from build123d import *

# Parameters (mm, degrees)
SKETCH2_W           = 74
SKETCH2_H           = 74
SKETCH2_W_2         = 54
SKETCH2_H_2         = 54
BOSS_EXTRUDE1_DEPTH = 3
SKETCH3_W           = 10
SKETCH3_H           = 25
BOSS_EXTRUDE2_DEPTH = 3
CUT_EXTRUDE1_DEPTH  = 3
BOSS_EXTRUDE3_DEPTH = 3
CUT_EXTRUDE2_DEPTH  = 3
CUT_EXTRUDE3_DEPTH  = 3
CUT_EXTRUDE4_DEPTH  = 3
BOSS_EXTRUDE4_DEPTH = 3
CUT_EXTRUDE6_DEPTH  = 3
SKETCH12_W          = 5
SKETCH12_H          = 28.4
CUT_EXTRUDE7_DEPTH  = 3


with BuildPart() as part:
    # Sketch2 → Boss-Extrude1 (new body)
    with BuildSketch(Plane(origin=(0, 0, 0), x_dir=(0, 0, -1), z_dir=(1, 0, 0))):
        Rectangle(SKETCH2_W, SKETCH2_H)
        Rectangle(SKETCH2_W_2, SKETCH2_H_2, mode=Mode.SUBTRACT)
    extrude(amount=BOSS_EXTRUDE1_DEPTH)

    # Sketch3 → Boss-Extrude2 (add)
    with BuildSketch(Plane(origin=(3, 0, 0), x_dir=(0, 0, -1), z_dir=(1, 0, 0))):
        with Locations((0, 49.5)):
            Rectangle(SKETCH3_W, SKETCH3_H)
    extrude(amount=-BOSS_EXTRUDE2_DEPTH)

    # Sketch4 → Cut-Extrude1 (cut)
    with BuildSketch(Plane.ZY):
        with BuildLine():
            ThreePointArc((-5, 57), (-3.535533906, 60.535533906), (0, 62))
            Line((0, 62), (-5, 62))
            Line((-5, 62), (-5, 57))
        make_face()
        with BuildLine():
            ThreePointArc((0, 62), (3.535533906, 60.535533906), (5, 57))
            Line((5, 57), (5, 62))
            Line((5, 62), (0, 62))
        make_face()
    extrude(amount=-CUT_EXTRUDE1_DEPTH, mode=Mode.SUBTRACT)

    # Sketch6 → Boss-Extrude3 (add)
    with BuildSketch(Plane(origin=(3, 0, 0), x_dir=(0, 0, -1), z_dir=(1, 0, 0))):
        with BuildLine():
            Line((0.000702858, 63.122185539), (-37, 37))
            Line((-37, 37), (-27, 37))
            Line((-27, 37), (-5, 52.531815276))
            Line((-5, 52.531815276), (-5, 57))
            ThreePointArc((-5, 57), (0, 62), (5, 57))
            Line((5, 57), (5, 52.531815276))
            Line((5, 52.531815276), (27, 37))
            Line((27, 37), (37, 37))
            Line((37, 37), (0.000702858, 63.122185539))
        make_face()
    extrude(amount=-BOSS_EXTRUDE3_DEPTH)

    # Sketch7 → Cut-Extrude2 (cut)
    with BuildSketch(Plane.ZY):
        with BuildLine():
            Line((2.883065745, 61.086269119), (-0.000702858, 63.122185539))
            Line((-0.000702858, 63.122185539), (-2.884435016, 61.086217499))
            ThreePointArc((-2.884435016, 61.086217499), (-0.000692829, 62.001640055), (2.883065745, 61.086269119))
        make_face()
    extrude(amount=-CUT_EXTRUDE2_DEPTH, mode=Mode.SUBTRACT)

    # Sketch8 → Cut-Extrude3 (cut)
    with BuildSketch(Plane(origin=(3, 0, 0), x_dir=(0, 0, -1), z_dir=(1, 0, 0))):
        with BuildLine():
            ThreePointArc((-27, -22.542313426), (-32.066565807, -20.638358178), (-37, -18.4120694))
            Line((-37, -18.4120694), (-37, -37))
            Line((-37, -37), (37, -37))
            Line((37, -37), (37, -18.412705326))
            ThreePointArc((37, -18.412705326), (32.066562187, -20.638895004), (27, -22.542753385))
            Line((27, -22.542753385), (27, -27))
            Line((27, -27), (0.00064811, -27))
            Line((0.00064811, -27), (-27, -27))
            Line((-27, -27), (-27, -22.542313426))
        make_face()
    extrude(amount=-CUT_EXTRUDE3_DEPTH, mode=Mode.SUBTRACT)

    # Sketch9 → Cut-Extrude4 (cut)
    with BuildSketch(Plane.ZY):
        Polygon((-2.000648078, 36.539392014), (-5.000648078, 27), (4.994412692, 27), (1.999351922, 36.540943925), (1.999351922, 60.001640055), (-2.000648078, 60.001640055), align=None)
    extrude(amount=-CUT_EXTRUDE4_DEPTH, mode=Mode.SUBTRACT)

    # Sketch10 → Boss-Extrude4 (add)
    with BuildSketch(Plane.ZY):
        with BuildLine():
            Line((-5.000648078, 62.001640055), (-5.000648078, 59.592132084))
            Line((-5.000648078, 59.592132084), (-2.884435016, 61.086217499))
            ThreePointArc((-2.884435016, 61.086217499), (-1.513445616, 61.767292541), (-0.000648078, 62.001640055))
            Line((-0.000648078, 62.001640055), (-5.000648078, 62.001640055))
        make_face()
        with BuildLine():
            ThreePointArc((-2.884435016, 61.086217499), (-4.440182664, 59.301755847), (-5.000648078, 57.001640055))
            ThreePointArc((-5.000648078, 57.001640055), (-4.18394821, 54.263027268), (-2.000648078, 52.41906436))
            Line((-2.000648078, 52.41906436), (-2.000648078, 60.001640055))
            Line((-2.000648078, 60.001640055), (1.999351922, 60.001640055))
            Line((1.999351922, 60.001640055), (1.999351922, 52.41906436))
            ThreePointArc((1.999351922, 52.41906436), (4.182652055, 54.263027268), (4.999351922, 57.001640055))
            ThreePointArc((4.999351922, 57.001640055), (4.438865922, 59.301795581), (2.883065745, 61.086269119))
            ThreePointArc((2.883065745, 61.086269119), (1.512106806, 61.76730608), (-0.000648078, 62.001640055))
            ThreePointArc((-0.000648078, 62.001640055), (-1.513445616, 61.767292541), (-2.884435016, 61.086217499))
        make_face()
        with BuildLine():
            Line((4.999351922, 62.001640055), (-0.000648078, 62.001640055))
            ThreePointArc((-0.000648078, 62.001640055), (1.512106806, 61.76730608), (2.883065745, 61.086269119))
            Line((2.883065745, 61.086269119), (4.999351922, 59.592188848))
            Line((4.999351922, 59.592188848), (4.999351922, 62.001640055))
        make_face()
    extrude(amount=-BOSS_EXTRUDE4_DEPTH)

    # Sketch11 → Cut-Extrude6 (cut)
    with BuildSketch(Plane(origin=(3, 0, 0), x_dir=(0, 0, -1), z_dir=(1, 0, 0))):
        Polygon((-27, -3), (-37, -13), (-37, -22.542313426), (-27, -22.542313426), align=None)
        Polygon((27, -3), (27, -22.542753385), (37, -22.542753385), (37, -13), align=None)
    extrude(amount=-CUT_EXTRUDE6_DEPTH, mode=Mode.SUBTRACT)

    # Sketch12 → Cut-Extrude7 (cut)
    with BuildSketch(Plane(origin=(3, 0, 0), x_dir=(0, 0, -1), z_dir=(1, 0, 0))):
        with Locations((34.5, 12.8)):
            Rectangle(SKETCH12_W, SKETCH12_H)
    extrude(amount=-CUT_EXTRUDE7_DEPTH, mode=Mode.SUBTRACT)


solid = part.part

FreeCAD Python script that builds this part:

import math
import FreeCAD as App
import Part
import Sketcher
from FreeCAD import Vector
Q = App.Units.Quantity

doc = App.newDocument("Part")
body = doc.addObject("PartDesign::Body", "Body")

# Sketch on YZ plane
sketch1 = body.newObject("Sketcher::SketchObject", "Sketch")
sketch1.AttachmentSupport = (doc.getObject("YZ_Plane"), [""])
sketch1.MapMode = "FlatFace"
sketch1.addGeometry([
    Part.LineSegment(Vector(37, 37, 0), Vector(-37, 37, 0)),  # 0
    Part.LineSegment(Vector(-37, 37, 0), Vector(-37, -37, 0)),  # 1
    Part.LineSegment(Vector(-37, -37, 0), Vector(37, -37, 0)),  # 2
    Part.LineSegment(Vector(37, -37, 0), Vector(37, 37, 0)),  # 3
    Part.LineSegment(Vector(-27, -27, 0), Vector(-27, 27, 0)),  # 4
    Part.LineSegment(Vector(-27, 27, 0), Vector(27, 27, 0)),  # 5
    Part.LineSegment(Vector(27, 27, 0), Vector(27, -27, 0)),  # 6
    Part.LineSegment(Vector(27, -27, 0), Vector(-27, -27, 0)),  # 7
], False)
sketch1.addConstraint([
    Sketcher.Constraint("Coincident", 0, 2, 1, 1),
    Sketcher.Constraint("Coincident", 1, 2, 2, 1),
    Sketcher.Constraint("Coincident", 2, 2, 3, 1),
    Sketcher.Constraint("Coincident", 3, 2, 0, 1),
    Sketcher.Constraint("Coincident", 4, 2, 5, 1),
    Sketcher.Constraint("Coincident", 5, 2, 6, 1),
    Sketcher.Constraint("Coincident", 6, 2, 7, 1),
    Sketcher.Constraint("Coincident", 7, 2, 4, 1),
    Sketcher.Constraint("Horizontal", 0),
    Sketcher.Constraint("Vertical", 1),
    Sketcher.Constraint("Horizontal", 2),
    Sketcher.Constraint("Vertical", 3),
    Sketcher.Constraint("Vertical", 4),
    Sketcher.Constraint("Horizontal", 5),
    Sketcher.Constraint("Vertical", 6),
    Sketcher.Constraint("Horizontal", 7),
    Sketcher.Constraint("Symmetric", 0, 2, 2, 2, -1, 1),
    Sketcher.Constraint("Symmetric", 4, 2, 6, 2, -1, 1),
    Sketcher.Constraint("Equal", 2, 1),
    Sketcher.Constraint("Equal", 7, 4),
    Sketcher.Constraint("DistanceX", 0, 2, 0, 1, Q("74 mm")),
    Sketcher.Constraint("DistanceX", 5, 1, 5, 2, Q("54 mm")),
])
pad1 = body.newObject("PartDesign::Pad", "Pad")
pad1.Profile = sketch1
pad1.Length = 3

# Sketch on YZ plane
sketch2 = body.newObject("Sketcher::SketchObject", "Sketch001")
sketch2.AttachmentSupport = (doc.getObject("YZ_Plane"), [""])
sketch2.MapMode = "FlatFace"
sketch2.AttachmentOffset = App.Placement(Vector(0, 0, 3), App.Rotation())
sketch2.addGeometry([
    Part.LineSegment(Vector(62, 5, 0), Vector(37, 5, 0)),
    Part.LineSegment(Vector(37, 5, 0), Vector(37, -5, 0)),
    Part.LineSegment(Vector(37, -5, 0), Vector(62, -5, 0)),
    Part.LineSegment(Vector(62, -5, 0), Vector(62, 5, 0)),
], False)
sketch2.addConstraint([
    Sketcher.Constraint("Coincident", 0, 2, 1, 1),
    Sketcher.Constraint("Coincident", 1, 2, 2, 1),
    Sketcher.Constraint("Coincident", 2, 2, 3, 1),
    Sketcher.Constraint("Coincident", 3, 2, 0, 1),
    Sketcher.Constraint("Horizontal", 0),
    Sketcher.Constraint("Vertical", 1),
    Sketcher.Constraint("Horizontal", 2),
    Sketcher.Constraint("Vertical", 3),
    Sketcher.Constraint("DistanceX", 0, 2, 0, 1, Q("25 mm")),
    Sketcher.Constraint("DistanceY", 1, 2, 1, 1, Q("10 mm")),
    Sketcher.Constraint("DistanceX", -1, 1, 0, 2, Q("37 mm")),
    Sketcher.Constraint("DistanceY", -1, 1, 0, 2, Q("5 mm")),
])
pad2 = body.newObject("PartDesign::Pad", "Pad001")
pad2.Profile = sketch2
pad2.Length = 3
pad2.Reversed = True

# Sketch on YZ plane
sketch3 = body.newObject("Sketcher::SketchObject", "Sketch002")
sketch3.AttachmentSupport = (doc.getObject("YZ_Plane"), [""])
sketch3.MapMode = "FlatFace"
sketch3.addGeometry([
    Part.ArcOfCircle(Part.Circle(Vector(57, 0, 0), Vector(0, 0, 1), 5), math.radians(-90), math.radians(0)),  # 0
    Part.LineSegment(Vector(62, 0, 0), Vector(62, -5, 0)),  # 1
    Part.LineSegment(Vector(62, -5, 0), Vector(57, -5, 0)),  # 2
    Part.ArcOfCircle(Part.Circle(Vector(57, 0, 0), Vector(0, 0, 1), 5), math.radians(0), math.radians(90)),  # 3
    Part.LineSegment(Vector(57, 5, 0), Vector(62, 5, 0)),  # 4
    Part.LineSegment(Vector(62, 5, 0), Vector(62, 0, 0)),  # 5
], False)
sketch3.addConstraint([
    Sketcher.Constraint("Tangent", 0, 2, 1, 1),
    Sketcher.Constraint("Coincident", 1, 2, 2, 1),
    Sketcher.Constraint("Tangent", 2, 2, 0, 1),
    Sketcher.Constraint("Tangent", 3, 2, 4, 1),
    Sketcher.Constraint("Coincident", 4, 2, 5, 1),
    Sketcher.Constraint("Tangent", 5, 2, 3, 1),
    Sketcher.Constraint("Vertical", 1),
    Sketcher.Constraint("Horizontal", 2),
    Sketcher.Constraint("Horizontal", 4),
    Sketcher.Constraint("Vertical", 5),
    Sketcher.Constraint("Coincident", 3, 3, 0, 3),
    Sketcher.Constraint("Equal", 0, 3),
    Sketcher.Constraint("PointOnObject", 0, 3, -1),
    Sketcher.Constraint("Radius", 0, Q("5 mm")),
    Sketcher.Constraint("DistanceX", -1, 1, 0, 3, Q("57 mm")),
])
pocket1 = body.newObject("PartDesign::Pocket", "Pocket")
pocket1.Profile = sketch3
pocket1.Length = 3
pocket1.Reversed = True

# Sketch on YZ plane
sketch4 = body.newObject("Sketcher::SketchObject", "Sketch003")
sketch4.AttachmentSupport = (doc.getObject("YZ_Plane"), [""])
sketch4.MapMode = "FlatFace"
sketch4.AttachmentOffset = App.Placement(Vector(0, 0, 3), App.Rotation())
sketch4.addGeometry([
    Part.LineSegment(Vector(63.1, 0, 0), Vector(37, 37, 0)),  # 0
    Part.LineSegment(Vector(37, 37, 0), Vector(37, 27, 0)),  # 1
    Part.LineSegment(Vector(37, 27, 0), Vector(52.5, 5, 0)),  # 2
    Part.LineSegment(Vector(52.5, 5, 0), Vector(57, 5, 0)),  # 3
    Part.ArcOfCircle(Part.Circle(Vector(57, 0, 0), Vector(0, 0, 1), 5), math.radians(-90), math.radians(90)),  # 4
    Part.LineSegment(Vector(57, -5, 0), Vector(52.5, -5, 0)),  # 5
    Part.LineSegment(Vector(52.5, -5, 0), Vector(37, -27, 0)),  # 6
    Part.LineSegment(Vector(37, -27, 0), Vector(37, -37, 0)),  # 7
    Part.LineSegment(Vector(37, -37, 0), Vector(63.1, 0, 0)),  # 8
], False)
sketch4.addConstraint([
    Sketcher.Constraint("Coincident", 0, 2, 1, 1),
    Sketcher.Constraint("Coincident", 1, 2, 2, 1),
    Sketcher.Constraint("Coincident", 2, 2, 3, 1),
    Sketcher.Constraint("Tangent", 3, 2, 4, 2),
    Sketcher.Constraint("Tangent", 4, 1, 5, 1),
    Sketcher.Constraint("Coincident", 5, 2, 6, 1),
    Sketcher.Constraint("Coincident", 6, 2, 7, 1),
    Sketcher.Constraint("Coincident", 7, 2, 8, 1),
    Sketcher.Constraint("Coincident", 8, 2, 0, 1),
    Sketcher.Constraint("Vertical", 1),
    Sketcher.Constraint("Horizontal", 3),
    Sketcher.Constraint("Horizontal", 5),
    Sketcher.Constraint("Vertical", 7),
    Sketcher.Constraint("Symmetric", 2, 2, 5, 2, -1),
    Sketcher.Constraint("Symmetric", 1, 2, 6, 2, -1),
    Sketcher.Constraint("Parallel", 0, 2),
    Sketcher.Constraint("Equal", 1, 7),
    Sketcher.Constraint("Radius", 4, Q("5 mm")),
    Sketcher.Constraint("DistanceY", 1, 2, 1, 1, Q("10 mm")),
    Sketcher.Constraint("DistanceX", -1, 1, 4, 3, Q("57 mm")),
    Sketcher.Constraint("DistanceX", -1, 1, 0, 2, Q("37 mm")),
    Sketcher.Constraint("DistanceY", -1, 1, 0, 2, Q("37 mm")),
    Sketcher.Constraint("Distance", 0, Q("45.292611 mm")),
    Sketcher.Constraint("Distance", 2, Q("26.93023 mm")),
])
pad3 = body.newObject("PartDesign::Pad", "Pad002")
pad3.Profile = sketch4
pad3.Length = 3
pad3.Reversed = True

# Sketch on YZ plane
sketch5 = body.newObject("Sketcher::SketchObject", "Sketch004")
sketch5.AttachmentSupport = (doc.getObject("YZ_Plane"), [""])
sketch5.MapMode = "FlatFace"
sketch5.addGeometry([
    Part.LineSegment(Vector(61.1, 2.9, 0), Vector(63.1, 0, 0)),
    Part.LineSegment(Vector(63.1, 0, 0), Vector(61.1, -2.9, 0)),
    Part.ArcOfCircle(Part.Circle(Vector(57, 0, 0), Vector(0, 0, 1), 5), math.radians(-35), math.radians(35)),
], False)
sketch5.addConstraint([
    Sketcher.Constraint("Coincident", 0, 2, 1, 1),
    Sketcher.Constraint("Tangent", 1, 2, 2, 1),
    Sketcher.Constraint("Tangent", 2, 2, 0, 1),
    Sketcher.Constraint("Radius", 2, Q("5 mm")),
    Sketcher.Constraint("DistanceY", 1, 2, 2, 2, Q("5.767501 mm")),
    Sketcher.Constraint("DistanceX", -1, 1, 2, 3, Q("57.00164 mm")),
    Sketcher.Constraint("DistanceY", 2, 3, -1, 1, Q("0.000648 mm")),
    Sketcher.Constraint("DistanceX", -1, 1, 2, 2, Q("61.086269 mm")),
])
pocket2 = body.newObject("PartDesign::Pocket", "Pocket001")
pocket2.Profile = sketch5
pocket2.Length = 3
pocket2.Reversed = True

# Sketch on YZ plane
sketch6 = body.newObject("Sketcher::SketchObject", "Sketch005")
sketch6.AttachmentSupport = (doc.getObject("YZ_Plane"), [""])
sketch6.MapMode = "FlatFace"
sketch6.AttachmentOffset = App.Placement(Vector(0, 0, 3), App.Rotation())
sketch6.addGeometry([
    Part.ArcOfCircle(Part.Circle(Vector(57, 0, 0), Vector(0, 0, 1), 84), math.radians(153.87), math.radians(161.25)),  # 0
    Part.LineSegment(Vector(-18.4, 37, 0), Vector(-37, 37, 0)),  # 1
    Part.LineSegment(Vector(-37, 37, 0), Vector(-37, -37, 0)),  # 2
    Part.LineSegment(Vector(-37, -37, 0), Vector(-18.4, -37, 0)),  # 3
    Part.ArcOfCircle(Part.Circle(Vector(57, 0, 0), Vector(0, 0, 1), 84), math.radians(-161.25), math.radians(-153.87)),  # 4
    Part.LineSegment(Vector(-22.5, -27, 0), Vector(-27, -27, 0)),  # 5
    Part.LineSegment(Vector(-27, -27, 0), Vector(-27, 27, 0)),  # 6
    Part.LineSegment(Vector(-27, 27, 0), Vector(-22.5, 27, 0)),  # 7
], False)
sketch6.addConstraint([
    Sketcher.Constraint("Coincident", 0, 1, 1, 1),
    Sketcher.Constraint("Coincident", 1, 2, 2, 1),
    Sketcher.Constraint("Coincident", 2, 2, 3, 1),
    Sketcher.Constraint("Coincident", 3, 2, 4, 2),
    Sketcher.Constraint("Coincident", 4, 1, 5, 1),
    Sketcher.Constraint("Coincident", 5, 2, 6, 1),
    Sketcher.Constraint("Coincident", 6, 2, 7, 1),
    Sketcher.Constraint("Coincident", 7, 2, 0, 2),
    Sketcher.Constraint("Horizontal", 1),
    Sketcher.Constraint("Vertical", 2),
    Sketcher.Constraint("Horizontal", 3),
    Sketcher.Constraint("Horizontal", 5),
    Sketcher.Constraint("Vertical", 6),
    Sketcher.Constraint("Horizontal", 7),
    Sketcher.Constraint("Coincident", 4, 3, 0, 3),
    Sketcher.Constraint("Equal", 0, 4),
    Sketcher.Constraint("DistanceY", 2, 2, 2, 1, Q("74 mm")),
    Sketcher.Constraint("DistanceY", 6, 1, 6, 2, Q("54 mm")),
    Sketcher.Constraint("DistanceY", -1, 1, 0, 1, Q("37 mm")),
    Sketcher.Constraint("DistanceX", 1, 2, -1, 1, Q("37 mm")),
    Sketcher.Constraint("DistanceY", 4, 1, -1, 1, Q("27 mm")),
    Sketcher.Constraint("DistanceX", 5, 2, -1, 1, Q("27 mm")),
    Sketcher.Constraint("Radius", 0, Q("84.00164 mm")),
    Sketcher.Constraint("DistanceX", 1, 2, 1, 1, Q("18.587931 mm")),
    Sketcher.Constraint("DistanceX", 3, 1, 3, 2, Q("18.587295 mm")),
])
pocket3 = body.newObject("PartDesign::Pocket", "Pocket002")
pocket3.Profile = sketch6
pocket3.Length = 3

# Sketch on YZ plane
sketch7 = body.newObject("Sketcher::SketchObject", "Sketch006")
sketch7.AttachmentSupport = (doc.getObject("YZ_Plane"), [""])
sketch7.MapMode = "FlatFace"
sketch7.addGeometry([
    Part.LineSegment(Vector(36.5, -2, 0), Vector(27, -5, 0)),  # 0
    Part.LineSegment(Vector(27, -5, 0), Vector(27, 5, 0)),  # 1
    Part.LineSegment(Vector(27, 5, 0), Vector(36.5, 2, 0)),  # 2
    Part.LineSegment(Vector(36.5, 2, 0), Vector(60, 2, 0)),  # 3
    Part.LineSegment(Vector(60, 2, 0), Vector(60, -2, 0)),  # 4
    Part.LineSegment(Vector(60, -2, 0), Vector(36.5, -2, 0)),  # 5
], False)
sketch7.addConstraint([
    Sketcher.Constraint("Coincident", 0, 2, 1, 1),
    Sketcher.Constraint("Coincident", 1, 2, 2, 1),
    Sketcher.Constraint("Coincident", 2, 2, 3, 1),
    Sketcher.Constraint("Coincident", 3, 2, 4, 1),
    Sketcher.Constraint("Coincident", 4, 2, 5, 1),
    Sketcher.Constraint("Coincident", 5, 2, 0, 1),
    Sketcher.Constraint("Vertical", 1),
    Sketcher.Constraint("Horizontal", 3),
    Sketcher.Constraint("Vertical", 4),
    Sketcher.Constraint("Horizontal", 5),
    Sketcher.Constraint("Equal", 0, 2),
    Sketcher.Constraint("DistanceY", 4, 2, 4, 1, Q("4 mm")),
    Sketcher.Constraint("Distance", 0, Q("10 mm")),
    Sketcher.Constraint("DistanceX", -1, 1, 0, 2, Q("27 mm")),
    Sketcher.Constraint("DistanceY", 0, 2, 2, 2, Q("7 mm")),
    Sketcher.Constraint("DistanceX", 5, 2, 5, 1, Q("23.462248 mm")),
    Sketcher.Constraint("DistanceY", 1, 1, 1, 2, Q("9.995061 mm")),
    Sketcher.Constraint("DistanceY", 0, 2, -1, 1, Q("5.000648 mm")),
])
pocket4 = body.newObject("PartDesign::Pocket", "Pocket003")
pocket4.Profile = sketch7
pocket4.Length = 3
pocket4.Reversed = True

# Sketch on YZ plane
sketch8 = body.newObject("Sketcher::SketchObject", "Sketch007")
sketch8.AttachmentSupport = (doc.getObject("YZ_Plane"), [""])
sketch8.MapMode = "FlatFace"
sketch8.addGeometry([
    Part.LineSegment(Vector(62, -5, 0), Vector(59.6, -5, 0)),  # 0
    Part.LineSegment(Vector(59.6, -5, 0), Vector(61.1, -2.9, 0)),  # 1
    Part.ArcOfCircle(Part.Circle(Vector(57, 0, 0), Vector(0, 0, 1), 5), math.radians(-90), math.radians(-35)),  # 2
    Part.ArcOfCircle(Part.Circle(Vector(57, 0, 0), Vector(0, 0, 1), 5), math.radians(-156), math.radians(-90)),  # 3
    Part.LineSegment(Vector(52.4, -2, 0), Vector(60, -2, 0)),  # 4
    Part.LineSegment(Vector(60, -2, 0), Vector(60, 2, 0)),  # 5
    Part.LineSegment(Vector(60, 2, 0), Vector(52.4, 2, 0)),  # 6
    Part.ArcOfCircle(Part.Circle(Vector(57, 0, 0), Vector(0, 0, 1), 5), math.radians(90), math.radians(156)),  # 7
    Part.ArcOfCircle(Part.Circle(Vector(57, 0, 0), Vector(0, 0, 1), 5), math.radians(35), math.radians(90)),  # 8
    Part.LineSegment(Vector(61.1, 2.9, 0), Vector(59.6, 5, 0)),  # 9
    Part.LineSegment(Vector(59.6, 5, 0), Vector(62, 5, 0)),  # 10
    Part.LineSegment(Vector(62, 5, 0), Vector(62, -5, 0)),  # 11
], False)
sketch8.addConstraint([
    Sketcher.Constraint("Coincident", 0, 2, 1, 1),
    Sketcher.Constraint("Tangent", 1, 2, 2, 2),
    Sketcher.Constraint("Tangent", 2, 1, 3, 2),
    Sketcher.Constraint("Coincident", 3, 1, 4, 1),
    Sketcher.Constraint("Coincident", 4, 2, 5, 1),
    Sketcher.Constraint("Coincident", 5, 2, 6, 1),
    Sketcher.Constraint("Coincident", 6, 2, 7, 2),
    Sketcher.Constraint("Tangent", 7, 1, 8, 2),
    Sketcher.Constraint("Tangent", 8, 1, 9, 1),
    Sketcher.Constraint("Coincident", 9, 2, 10, 1),
    Sketcher.Constraint("Coincident", 10, 2, 11, 1),
    Sketcher.Constraint("Coincident", 11, 2, 0, 1),
    Sketcher.Constraint("Horizontal", 0),
    Sketcher.Constraint("Horizontal", 4),
    Sketcher.Constraint("Vertical", 5),
    Sketcher.Constraint("Horizontal", 6),
    Sketcher.Constraint("Horizontal", 10),
    Sketcher.Constraint("Vertical", 11),
    Sketcher.Constraint("Coincident", 7, 3, 2, 3),
    Sketcher.Constraint("Equal", 2, 3),
    Sketcher.Constraint("Equal", 3, 7),
    Sketcher.Constraint("Equal", 7, 8),
    Sketcher.Constraint("Horizontal", 0, 2, 2, 1),
    Sketcher.Constraint("Horizontal", 7, 1, 9, 2),
    Sketcher.Constraint("Vertical", 8, 3, 2, 1),
    Sketcher.Constraint("Vertical", 3, 1, 6, 2),
    Sketcher.Constraint("Vertical", 2, 1, 7, 1),
    Sketcher.Constraint("Radius", 2, Q("5 mm")),
    Sketcher.Constraint("DistanceY", 5, 1, 5, 2, Q("4 mm")),
    Sketcher.Constraint("DistanceX", 8, 3, 4, 2, Q("3 mm")),
    Sketcher.Constraint("DistanceX", 5, 2, 10, 2, Q("2 mm")),
    Sketcher.Constraint("DistanceX", 10, 1, 10, 2, Q("2.409451 mm")),
    Sketcher.Constraint("DistanceX", 0, 2, 0, 1, Q("2.409508 mm")),
    Sketcher.Constraint("DistanceX", -1, 1, 2, 3, Q("57.00164 mm")),
    Sketcher.Constraint("DistanceY", 2, 3, -1, 1, Q("0.000648 mm")),
])
pad4 = body.newObject("PartDesign::Pad", "Pad003")
pad4.Profile = sketch8
pad4.Length = 3

# Sketch on YZ plane
sketch9 = body.newObject("Sketcher::SketchObject", "Sketch008")
sketch9.AttachmentSupport = (doc.getObject("YZ_Plane"), [""])
sketch9.MapMode = "FlatFace"
sketch9.AttachmentOffset = App.Placement(Vector(0, 0, 3), App.Rotation())
sketch9.addGeometry([
    Part.LineSegment(Vector(-3, 27, 0), Vector(-13, 37, 0)),  # 0
    Part.LineSegment(Vector(-13, 37, 0), Vector(-23, 37, 0)),  # 1
    Part.LineSegment(Vector(-23, 37, 0), Vector(-23, 27, 0)),  # 2
    Part.LineSegment(Vector(-23, 27, 0), Vector(-3, 27, 0)),  # 3
    Part.LineSegment(Vector(-3, -27, 0), Vector(-23, -27, 0)),  # 4
    Part.LineSegment(Vector(-23, -27, 0), Vector(-23, -37, 0)),  # 5
    Part.LineSegment(Vector(-23, -37, 0), Vector(-13, -37, 0)),  # 6
    Part.LineSegment(Vector(-13, -37, 0), Vector(-3, -27, 0)),  # 7
], False)
sketch9.addConstraint([
    Sketcher.Constraint("Coincident", 0, 2, 1, 1),
    Sketcher.Constraint("Coincident", 1, 2, 2, 1),
    Sketcher.Constraint("Coincident", 2, 2, 3, 1),
    Sketcher.Constraint("Coincident", 3, 2, 0, 1),
    Sketcher.Constraint("Coincident", 4, 2, 5, 1),
    Sketcher.Constraint("Coincident", 5, 2, 6, 1),
    Sketcher.Constraint("Coincident", 6, 2, 7, 1),
    Sketcher.Constraint("Coincident", 7, 2, 4, 1),
    Sketcher.Constraint("Horizontal", 1),
    Sketcher.Constraint("Vertical", 2),
    Sketcher.Constraint("Horizontal", 3),
    Sketcher.Constraint("Horizontal", 4),
    Sketcher.Constraint("Vertical", 5),
    Sketcher.Constraint("Horizontal", 6),
    Sketcher.Constraint("Symmetric", 0, 2, 6, 2, -1),
    Sketcher.Constraint("Symmetric", 3, 2, 7, 2, -1),
    Sketcher.Constraint("Perpendicular", 0, 7),
    Sketcher.Constraint("DistanceY", 2, 2, 2, 1, Q("10 mm")),
    Sketcher.Constraint("DistanceX", 0, 2, -1, 1, Q("13 mm")),
    Sketcher.Constraint("DistanceY", -1, 1, 0, 2, Q("37 mm")),
    Sketcher.Constraint("DistanceX", 1, 2, 1, 1, Q("9.542313 mm")),
    Sketcher.Constraint("DistanceX", 4, 2, 4, 1, Q("19.542753 mm")),
])
pocket5 = body.newObject("PartDesign::Pocket", "Pocket004")
pocket5.Profile = sketch9
pocket5.Length = 3

# Sketch on YZ plane
sketch10 = body.newObject("Sketcher::SketchObject", "Sketch009")
sketch10.AttachmentSupport = (doc.getObject("YZ_Plane"), [""])
sketch10.MapMode = "FlatFace"
sketch10.AttachmentOffset = App.Placement(Vector(0, 0, 3), App.Rotation())
sketch10.addGeometry([
    Part.LineSegment(Vector(27, -32, 0), Vector(-1, -32, 0)),
    Part.LineSegment(Vector(-1, -32, 0), Vector(-1, -37, 0)),
    Part.LineSegment(Vector(-1, -37, 0), Vector(27, -37, 0)),
    Part.LineSegment(Vector(27, -37, 0), Vector(27, -32, 0)),
], False)
sketch10.addConstraint([
    Sketcher.Constraint("Coincident", 0, 2, 1, 1),
    Sketcher.Constraint("Coincident", 1, 2, 2, 1),
    Sketcher.Constraint("Coincident", 2, 2, 3, 1),
    Sketcher.Constraint("Coincident", 3, 2, 0, 1),
    Sketcher.Constraint("Horizontal", 0),
    Sketcher.Constraint("Vertical", 1),
    Sketcher.Constraint("Horizontal", 2),
    Sketcher.Constraint("Vertical", 3),
    Sketcher.Constraint("DistanceY", 1, 2, 1, 1, Q("5 mm")),
    Sketcher.Constraint("DistanceX", 0, 2, 0, 1, Q("28.4 mm")),
    Sketcher.Constraint("DistanceY", 0, 2, -1, 1, Q("32 mm")),
    Sketcher.Constraint("DistanceX", -1, 1, 2, 2, Q("27 mm")),
])
pocket6 = body.newObject("PartDesign::Pocket", "Pocket005")
pocket6.Profile = sketch10
pocket6.Length = 3

doc.recompute()
